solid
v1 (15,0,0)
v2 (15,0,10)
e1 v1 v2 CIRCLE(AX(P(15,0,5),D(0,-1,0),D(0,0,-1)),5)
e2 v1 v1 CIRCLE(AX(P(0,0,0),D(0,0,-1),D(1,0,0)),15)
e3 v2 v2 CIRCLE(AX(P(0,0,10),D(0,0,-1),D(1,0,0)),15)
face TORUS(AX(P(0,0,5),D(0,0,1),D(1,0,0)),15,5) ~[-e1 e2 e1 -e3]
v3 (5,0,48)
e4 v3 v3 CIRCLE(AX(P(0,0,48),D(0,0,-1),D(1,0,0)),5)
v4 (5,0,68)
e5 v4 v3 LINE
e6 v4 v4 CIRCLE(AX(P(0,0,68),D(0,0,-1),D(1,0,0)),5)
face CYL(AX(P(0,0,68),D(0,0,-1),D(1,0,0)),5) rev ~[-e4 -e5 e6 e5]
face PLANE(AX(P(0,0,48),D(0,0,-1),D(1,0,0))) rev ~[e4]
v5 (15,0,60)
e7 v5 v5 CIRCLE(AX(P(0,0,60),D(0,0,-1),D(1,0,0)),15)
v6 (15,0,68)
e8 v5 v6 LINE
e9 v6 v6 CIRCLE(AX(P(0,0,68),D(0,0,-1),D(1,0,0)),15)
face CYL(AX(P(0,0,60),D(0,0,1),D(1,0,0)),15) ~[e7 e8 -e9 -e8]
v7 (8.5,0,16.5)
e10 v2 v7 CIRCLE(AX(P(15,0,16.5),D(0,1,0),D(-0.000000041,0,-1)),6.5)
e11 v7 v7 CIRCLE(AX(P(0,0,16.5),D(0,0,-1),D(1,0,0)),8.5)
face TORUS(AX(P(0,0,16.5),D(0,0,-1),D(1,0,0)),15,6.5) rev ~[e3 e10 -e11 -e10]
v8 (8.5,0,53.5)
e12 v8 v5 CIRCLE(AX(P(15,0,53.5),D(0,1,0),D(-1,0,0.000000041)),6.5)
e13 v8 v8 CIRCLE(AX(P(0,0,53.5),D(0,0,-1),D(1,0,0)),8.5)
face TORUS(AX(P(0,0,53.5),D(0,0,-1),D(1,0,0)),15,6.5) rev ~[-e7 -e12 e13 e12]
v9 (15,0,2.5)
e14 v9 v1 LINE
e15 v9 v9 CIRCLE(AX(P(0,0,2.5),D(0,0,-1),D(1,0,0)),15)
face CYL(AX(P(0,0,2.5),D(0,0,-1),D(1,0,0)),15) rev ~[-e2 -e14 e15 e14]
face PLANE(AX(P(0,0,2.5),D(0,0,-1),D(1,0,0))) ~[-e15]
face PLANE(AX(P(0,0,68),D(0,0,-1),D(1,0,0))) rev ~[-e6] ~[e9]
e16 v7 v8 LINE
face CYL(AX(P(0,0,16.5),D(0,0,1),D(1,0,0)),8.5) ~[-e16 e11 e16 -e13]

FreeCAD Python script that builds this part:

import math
import FreeCAD as App
import Part
import Sketcher

doc = App.newDocument("Part")
body = doc.addObject("PartDesign::Body", "Body")

sketch1 = body.newObject("Sketcher::SketchObject", "Sketch")
sketch1.AttachmentSupport = (doc.getObject("XZ_Plane"), [""])
sketch1.MapMode = "FlatFace"
sketch1.addGeometry([
    Part.LineSegment(App.Vector(5, 68, 0), App.Vector(5, 48, 0)),
    Part.LineSegment(App.Vector(5, 48, 0), App.Vector(0, 48, 0)),
    Part.LineSegment(App.Vector(0, 48, 0), App.Vector(0, 2.5, 0)),
    Part.LineSegment(App.Vector(0, 2.5, 0), App.Vector(15, 2.5, 0)),
    Part.LineSegment(App.Vector(15, 2.5, 0), App.Vector(15, 0, 0)),
    Part.ArcOfCircle(Part.Circle(App.Vector(15, 5, 0), App.Vector(0, 0, 1), 5), math.radians(-90), math.radians(90)),
    Part.ArcOfCircle(Part.Circle(App.Vector(15, 16.5, 0), App.Vector(0, 0, 1), 6.5), math.radians(-180), math.radians(-90)),
    Part.LineSegment(App.Vector(8.5, 16.5, 0), App.Vector(8.5, 53.5, 0)),
    Part.ArcOfCircle(Part.Circle(App.Vector(15, 53.5, 0), App.Vector(0, 0, 1), 6.5), math.radians(90), math.radians(180)),
    Part.LineSegment(App.Vector(15, 60, 0), App.Vector(15, 68, 0)),
    Part.LineSegment(App.Vector(15, 68, 0), App.Vector(5, 68, 0)),
], False)
sketch1.addConstraint([
    Sketcher.Constraint("Coincident", 0, 2, 1, 1),
    Sketcher.Constraint("Coincident", 1, 2, 2, 1),
    Sketcher.Constraint("Coincident", 2, 2, 3, 1),
    Sketcher.Constraint("Coincident", 3, 2, 4, 1),
    Sketcher.Constraint("Coincident", 4, 2, 5, 1),
    Sketcher.Constraint("Tangent", 5, 2, 6, 2),
    Sketcher.Constraint("Tangent", 6, 1, 7, 1),
    Sketcher.Constraint("Tangent", 7, 2, 8, 2),
    Sketcher.Constraint("Coincident", 8, 1, 9, 1),
    Sketcher.Constraint("Coincident", 9, 2, 10, 1),
    Sketcher.Constraint("Coincident", 10, 2, 0, 1),
    Sketcher.Constraint("Vertical", 0),
    Sketcher.Constraint("Horizontal", 1),
    Sketcher.Constraint("Vertical", 2),
    Sketcher.Constraint("Horizontal", 3),
    Sketcher.Constraint("Vertical", 4),
    Sketcher.Constraint("Vertical", 7),
    Sketcher.Constraint("Vertical", 9),
    Sketcher.Constraint("Horizontal", 10),
    Sketcher.Constraint("Equal", 6, 8),
    Sketcher.Constraint("PointOnObject", 1, 2, -2),
    Sketcher.Constraint("PointOnObject", 4, 2, -1),
    Sketcher.Constraint("Vertical", 5, 3, 6, 3),
    Sketcher.Constraint("Vertical", 8, 3, 3, 2),
    Sketcher.Constraint("Vertical", 5, 2, 8, 1),
    Sketcher.Constraint("Radius", 5, 5.0),
    Sketcher.Constraint("Radius", 6, 6.5),
    Sketcher.Constraint("DistanceX", 1, 2, 1, 1, 5.0),
    Sketcher.Constraint("DistanceX", 3, 1, 3, 2, 15.0),
    Sketcher.Constraint("DistanceY", 0, 2, 0, 1, 20.0),
    Sketcher.Constraint("DistanceY", 7, 1, 7, 2, 37.0),
    Sketcher.Constraint("DistanceY", 9, 1, 9, 2, 8.0),
    Sketcher.Constraint("DistanceY", 2, 2, 2, 1, 45.5),
])
revolution = body.newObject("PartDesign::Revolution", "Revolution")
revolution.Profile = sketch1
revolution.ReferenceAxis = (sketch1, ["V_Axis"])
revolution.Angle = 360

doc.recompute()
